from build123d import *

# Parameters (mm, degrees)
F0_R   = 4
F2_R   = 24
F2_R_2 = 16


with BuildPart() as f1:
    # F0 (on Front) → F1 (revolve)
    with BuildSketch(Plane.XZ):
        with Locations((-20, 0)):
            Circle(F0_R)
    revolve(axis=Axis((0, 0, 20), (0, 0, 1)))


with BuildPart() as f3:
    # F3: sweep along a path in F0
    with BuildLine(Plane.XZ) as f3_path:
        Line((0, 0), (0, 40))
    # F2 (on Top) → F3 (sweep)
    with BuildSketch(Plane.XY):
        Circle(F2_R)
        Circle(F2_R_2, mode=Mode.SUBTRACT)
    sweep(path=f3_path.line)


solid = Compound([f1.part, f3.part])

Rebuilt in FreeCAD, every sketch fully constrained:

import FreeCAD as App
import Part
import Sketcher
from FreeCAD import Vector
Q = App.Units.Quantity

doc = App.newDocument("Part")
params = doc.addObject("Spreadsheet::Sheet", "Params")
for row, (alias, value) in enumerate([
    ("sketch1_diameter", "8 mm"),
    ("revolution_angle", "360 deg"),
    ("sketch2_diameter", "48 mm"),
    ("sketch2_diameter2", "32 mm"),
    ("sketch3_height", "40 mm"),
], start=1):
    params.set(f"A{row}", alias)
    params.set(f"B{row}", "=" + value)
    params.setAlias(f"B{row}", alias)

body = doc.addObject("PartDesign::Body", "Body")

# Sketch on XZ plane
sketch1 = body.newObject("Sketcher::SketchObject", "Sketch")
sketch1.AttachmentSupport = (doc.getObject("XZ_Plane"), [""])
sketch1.MapMode = "FlatFace"
sketch1.addGeometry(Part.Circle(Vector(-20, 0, 0), Vector(0, 0, 1), 4), False)
sketch1.addConstraint([
    Sketcher.Constraint("PointOnObject", 0, 3, -1),
    Sketcher.Constraint("Diameter", 0, Q("8 mm")),
    Sketcher.Constraint("DistanceX", 0, 3, -1, 1, Q("20 mm")),
])
sketch1.setExpression("Constraints[1]", "Params.sketch1_diameter")
revolution = body.newObject("PartDesign::Revolution", "Revolution")
revolution.Profile = sketch1
revolution.ReferenceAxis = (sketch1, ["V_Axis"])
revolution.setExpression("Angle", "Params.revolution_angle")
body2 = doc.addObject("PartDesign::Body", "Body001")

# Sketch on XY plane
sketch2 = body2.newObject("Sketcher::SketchObject", "Sketch001")
sketch2.AttachmentSupport = (doc.getObject("XY_Plane001"), [""])
sketch2.MapMode = "FlatFace"
sketch2.addGeometry([
    Part.Circle(Vector(0, 0, 0), Vector(0, 0, 1), 24),
    Part.Circle(Vector(0, 0, 0), Vector(0, 0, 1), 16),
], False)
sketch2.addConstraint([
    Sketcher.Constraint("Coincident", 0, 3, -1, 1),
    Sketcher.Constraint("Coincident", 1, 3, -1, 1),
    Sketcher.Constraint("Diameter", 0, Q("48 mm")),
    Sketcher.Constraint("Diameter", 1, Q("32 mm")),
])
sketch2.setExpression("Constraints[2]", "Params.sketch2_diameter")
sketch2.setExpression("Constraints[3]", "Params.sketch2_diameter2")

# Sketch on XZ plane
sketch3 = body2.newObject("Sketcher::SketchObject", "Sketch002")
sketch3.AttachmentSupport = (doc.getObject("XZ_Plane001"), [""])
sketch3.MapMode = "FlatFace"
sketch3.addGeometry(Part.LineSegment(Vector(0, 0, 0), Vector(0, 40, 0)), False)
sketch3.addConstraint([
    Sketcher.Constraint("Vertical", 0),
    Sketcher.Constraint("Coincident", 0, 1, -1, 1),
    Sketcher.Constraint("DistanceY", 0, 1, 0, 2, Q("40 mm")),
])
sketch3.setExpression("Constraints[2]", "Params.sketch3_height")
doc.recompute()

additivepipe = body2.newObject("PartDesign::AdditivePipe", "AdditivePipe")
additivepipe.Profile = sketch2
additivepipe.Spine = (sketch3, ["Edge1"])

doc.recompute()
